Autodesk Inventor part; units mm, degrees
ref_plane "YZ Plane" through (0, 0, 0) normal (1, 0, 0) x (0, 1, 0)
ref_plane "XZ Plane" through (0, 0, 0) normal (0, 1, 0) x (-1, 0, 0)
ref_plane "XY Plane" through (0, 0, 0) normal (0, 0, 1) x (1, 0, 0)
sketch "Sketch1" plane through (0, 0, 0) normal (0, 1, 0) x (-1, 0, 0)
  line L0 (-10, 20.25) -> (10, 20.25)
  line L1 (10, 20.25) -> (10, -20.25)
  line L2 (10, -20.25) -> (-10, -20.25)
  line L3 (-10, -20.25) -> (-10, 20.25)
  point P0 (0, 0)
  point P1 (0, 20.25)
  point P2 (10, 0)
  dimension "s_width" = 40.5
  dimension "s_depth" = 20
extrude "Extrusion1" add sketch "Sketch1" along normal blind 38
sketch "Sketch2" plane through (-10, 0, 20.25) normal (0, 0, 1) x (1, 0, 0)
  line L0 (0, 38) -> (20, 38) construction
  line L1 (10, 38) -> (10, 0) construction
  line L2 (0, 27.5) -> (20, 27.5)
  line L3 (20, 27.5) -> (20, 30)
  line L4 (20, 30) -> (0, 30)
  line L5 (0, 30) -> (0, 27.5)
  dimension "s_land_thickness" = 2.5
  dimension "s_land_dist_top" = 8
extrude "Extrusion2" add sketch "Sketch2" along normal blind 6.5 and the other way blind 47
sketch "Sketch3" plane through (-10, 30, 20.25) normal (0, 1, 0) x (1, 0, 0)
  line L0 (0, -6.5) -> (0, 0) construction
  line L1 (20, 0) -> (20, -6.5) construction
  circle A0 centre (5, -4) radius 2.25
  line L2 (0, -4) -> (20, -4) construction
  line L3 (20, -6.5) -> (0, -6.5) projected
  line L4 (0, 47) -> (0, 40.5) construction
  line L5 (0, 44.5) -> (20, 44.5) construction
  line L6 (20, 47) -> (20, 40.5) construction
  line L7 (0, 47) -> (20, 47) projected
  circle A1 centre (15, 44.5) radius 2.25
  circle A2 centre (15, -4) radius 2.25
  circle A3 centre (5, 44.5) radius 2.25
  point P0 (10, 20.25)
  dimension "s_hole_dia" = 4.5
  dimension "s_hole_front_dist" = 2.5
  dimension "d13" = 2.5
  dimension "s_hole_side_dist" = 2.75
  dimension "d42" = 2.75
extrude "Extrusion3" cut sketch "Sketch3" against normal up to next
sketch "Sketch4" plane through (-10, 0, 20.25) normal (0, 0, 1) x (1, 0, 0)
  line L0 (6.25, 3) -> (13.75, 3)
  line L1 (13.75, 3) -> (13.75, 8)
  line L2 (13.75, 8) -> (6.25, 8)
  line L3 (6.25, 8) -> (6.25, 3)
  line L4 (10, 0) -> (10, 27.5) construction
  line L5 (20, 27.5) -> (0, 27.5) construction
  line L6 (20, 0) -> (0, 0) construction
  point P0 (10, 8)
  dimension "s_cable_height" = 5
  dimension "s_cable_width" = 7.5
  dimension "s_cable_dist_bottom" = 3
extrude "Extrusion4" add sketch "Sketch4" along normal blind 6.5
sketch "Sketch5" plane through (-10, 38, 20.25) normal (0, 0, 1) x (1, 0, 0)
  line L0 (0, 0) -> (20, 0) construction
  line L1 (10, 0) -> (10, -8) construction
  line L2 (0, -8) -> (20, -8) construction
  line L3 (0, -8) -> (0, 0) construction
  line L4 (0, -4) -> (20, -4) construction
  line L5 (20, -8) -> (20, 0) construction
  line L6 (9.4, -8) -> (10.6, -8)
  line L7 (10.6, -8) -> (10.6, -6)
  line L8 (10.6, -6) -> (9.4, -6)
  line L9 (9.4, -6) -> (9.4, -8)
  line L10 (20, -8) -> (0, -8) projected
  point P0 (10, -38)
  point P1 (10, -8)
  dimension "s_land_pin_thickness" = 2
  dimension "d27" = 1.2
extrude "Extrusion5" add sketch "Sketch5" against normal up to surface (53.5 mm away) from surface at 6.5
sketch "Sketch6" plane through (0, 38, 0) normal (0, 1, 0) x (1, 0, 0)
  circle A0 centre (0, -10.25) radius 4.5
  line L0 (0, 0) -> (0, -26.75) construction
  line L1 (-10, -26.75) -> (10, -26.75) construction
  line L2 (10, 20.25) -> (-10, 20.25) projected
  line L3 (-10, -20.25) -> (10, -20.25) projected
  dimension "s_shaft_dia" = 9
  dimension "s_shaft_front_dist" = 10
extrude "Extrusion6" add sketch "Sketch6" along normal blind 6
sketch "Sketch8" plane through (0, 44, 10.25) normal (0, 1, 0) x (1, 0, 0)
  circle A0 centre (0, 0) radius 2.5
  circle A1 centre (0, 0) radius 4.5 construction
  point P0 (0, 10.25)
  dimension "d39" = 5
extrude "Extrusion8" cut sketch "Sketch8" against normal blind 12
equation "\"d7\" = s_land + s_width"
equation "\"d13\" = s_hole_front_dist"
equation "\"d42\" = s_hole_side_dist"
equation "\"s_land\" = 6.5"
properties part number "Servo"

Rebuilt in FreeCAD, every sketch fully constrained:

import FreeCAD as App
import Part
import Sketcher
Q = App.Units.Quantity


def add_polygon(sketch, points):
    """Adds a closed chain of lines whose ends are joined by coincident constraints."""
    first, n = sketch.GeometryCount, len(points)
    for a, b in zip(points, points[1:] + points[:1]):
        sketch.addGeometry(Part.LineSegment(App.Vector(*a, 0), App.Vector(*b, 0)), False)
    for i in range(n):
        sketch.addConstraint(Sketcher.Constraint("Coincident", first + i, 2, first + (i + 1) % n, 1))

doc = App.newDocument("Part")
params = doc.addObject("Spreadsheet::Sheet", "Params")
for row, (alias, value) in enumerate([
    ("sketch1_width", "20 mm"),
    ("sketch1_height", "40.5 mm"),
    ("pad1_length", "38 mm"),
    ("sketch2_height", "2.5 mm"),
    ("sketch2_width", "20 mm"),
    ("pad2_length", "6.5 mm"),
    ("pad2_length2", "47 mm"),
    ("sketch3_diameter", "4.5 mm"),
    ("sketch4_height", "5 mm"),
    ("sketch4_width", "7.5 mm"),
    ("pad3_length", "6.5 mm"),
    ("sketch5_height", "2 mm"),
    ("sketch5_width", "1.2 mm"),
    ("pad4_length", "53.5 mm"),
    ("sketch6_diameter", "9 mm"),
    ("pad5_length", "6 mm"),
    ("sketch7_diameter", "5 mm"),
    ("pocket2_length", "12 mm"),
], start=1):
    params.set(f"A{row}", alias)
    params.set(f"B{row}", "=" + value)
    params.setAlias(f"B{row}", alias)

body = doc.addObject("PartDesign::Body", "Body")

# Sketch on XZ plane
sketch1 = doc.addObject("Sketcher::SketchObject", "Sketch")
body.addObject(sketch1)
sketch1.AttachmentSupport = (doc.XZ_Plane, [""])
sketch1.MapMode = "FlatFace"
add_polygon(sketch1, [(-10, 20.25), (10, 20.25), (10, -20.25), (-10, -20.25)])  # lines 0-3
sketch1.addConstraint([
    Sketcher.Constraint("Horizontal", 0),
    Sketcher.Constraint("Vertical", 1),
    Sketcher.Constraint("Horizontal", 2),
    Sketcher.Constraint("Vertical", 3),
    Sketcher.Constraint("Symmetric", 0, 2, 2, 2, -1, 1),
    Sketcher.Constraint("DistanceX", 0, 1, 0, 2, Q("20 mm")),
    Sketcher.Constraint("DistanceY", 1, 2, 1, 1, Q("40.5 mm")),
])
sketch1.setExpression("Constraints[9]", "Params.sketch1_width")
sketch1.setExpression("Constraints[10]", "Params.sketch1_height")
pad1 = doc.addObject("PartDesign::Pad", "Pad")
body.addObject(pad1)
pad1.Profile = sketch1
pad1.setExpression("Length", "Params.pad1_length")
pad1.Reversed = True

# Sketch on XY plane
sketch2 = doc.addObject("Sketcher::SketchObject", "Sketch001")
body.addObject(sketch2)
sketch2.AttachmentSupport = (doc.XY_Plane, [""])
sketch2.MapMode = "FlatFace"
sketch2.AttachmentOffset = App.Placement(App.Vector(0, 0, 20.25), App.Rotation())
add_polygon(sketch2, [(-10, 30), (-10, 27.5), (10, 27.5), (10, 30)])  # lines 0-3
sketch2.addConstraint([
    Sketcher.Constraint("Vertical", 0),
    Sketcher.Constraint("Horizontal", 1),
    Sketcher.Constraint("Vertical", 2),
    Sketcher.Constraint("Horizontal", 3),
    Sketcher.Constraint("DistanceY", 0, 2, 0, 1, Q("2.5 mm")),
    Sketcher.Constraint("DistanceX", 1, 1, 1, 2, Q("20 mm")),
    Sketcher.Constraint("DistanceX", 0, 2, -1, 1, Q("10 mm")),
    Sketcher.Constraint("DistanceY", -1, 1, 2, 2, Q("30 mm")),
])
sketch2.setExpression("Constraints[8]", "Params.sketch2_height")
sketch2.setExpression("Constraints[9]", "Params.sketch2_width")
pad2 = doc.addObject("PartDesign::Pad", "Pad001")
body.addObject(pad2)
pad2.Profile = sketch2
pad2.Type = "TwoLengths"
pad2.setExpression("Length", "Params.pad2_length")
pad2.setExpression("Length2", "Params.pad2_length2")

# Sketch on XZ plane
sketch3 = doc.addObject("Sketcher::SketchObject", "Sketch002")
body.addObject(sketch3)
sketch3.AttachmentSupport = (doc.XZ_Plane, [""])
sketch3.MapMode = "FlatFace"
sketch3.AttachmentOffset = App.Placement(App.Vector(0, 0, -30), App.Rotation())
sketch3.addGeometry([
    Part.Circle(App.Vector(-5, 24.25, 0), App.Vector(0, 0, 1), 2.25),
    Part.Circle(App.Vector(5, -24.25, 0), App.Vector(0, 0, 1), 2.25),
    Part.Circle(App.Vector(5, 24.25, 0), App.Vector(0, 0, 1), 2.25),
    Part.Circle(App.Vector(-5, -24.25, 0), App.Vector(0, 0, 1), 2.25),
], False)
sketch3.addConstraint([
    Sketcher.Constraint("Equal", 0, 1),
    Sketcher.Constraint("Equal", 1, 2),
    Sketcher.Constraint("Equal", 2, 3),
    Sketcher.Constraint("Symmetric", 0, 3, 1, 3, -1, 1),
    Sketcher.Constraint("Symmetric", 2, 3, 3, 3, -1, 1),
    Sketcher.Constraint("Symmetric", 0, 3, 2, 3, -2),
    Sketcher.Constraint("Diameter", 0, Q("4.5 mm")),
    Sketcher.Constraint("DistanceX", 0, 3, -1, 1, Q("5 mm")),
    Sketcher.Constraint("DistanceY", 1, 3, 0, 3, Q("48.5 mm")),
])
sketch3.setExpression("Constraints[6]", "Params.sketch3_diameter")
pocket1 = doc.addObject("PartDesign::Pocket", "Pocket")
body.addObject(pocket1)
pocket1.Profile = sketch3
pocket1.Type = "UpToFirst"
pocket1.Reversed = True

# Sketch on XY plane
sketch4 = doc.addObject("Sketcher::SketchObject", "Sketch003")
body.addObject(sketch4)
sketch4.AttachmentSupport = (doc.XY_Plane, [""])
sketch4.MapMode = "FlatFace"
sketch4.AttachmentOffset = App.Placement(App.Vector(0, 0, 20.25), App.Rotation())
add_polygon(sketch4, [(-3.75, 8), (-3.75, 3), (3.75, 3), (3.75, 8)])  # lines 0-3
sketch4.addConstraint([
    Sketcher.Constraint("Vertical", 0),
    Sketcher.Constraint("Horizontal", 1),
    Sketcher.Constraint("Vertical", 2),
    Sketcher.Constraint("Horizontal", 3),
    Sketcher.Constraint("DistanceY", 0, 2, 0, 1, Q("5 mm")),
    Sketcher.Constraint("DistanceX", 1, 1, 1, 2, Q("7.5 mm")),
    Sketcher.Constraint("DistanceY", -1, 1, 0, 2, Q("3 mm")),
    Sketcher.Constraint("DistanceX", 0, 2, -1, 1, Q("3.75 mm")),
])
sketch4.setExpression("Constraints[8]", "Params.sketch4_height")
sketch4.setExpression("Constraints[9]", "Params.sketch4_width")
pad3 = doc.addObject("PartDesign::Pad", "Pad002")
body.addObject(pad3)
pad3.Profile = sketch4
pad3.setExpression("Length", "Params.pad3_length")

# Sketch on XY plane
sketch5 = doc.addObject("Sketcher::SketchObject", "Sketch004")
body.addObject(sketch5)
sketch5.AttachmentSupport = (doc.XY_Plane, [""])
sketch5.MapMode = "FlatFace"
sketch5.AttachmentOffset = App.Placement(App.Vector(0, 0, 26.75), App.Rotation())
add_polygon(sketch5, [(-0.6, 32), (-0.6, 30), (0.6, 30), (0.6, 32)])  # lines 0-3
sketch5.addConstraint([
    Sketcher.Constraint("Vertical", 0),
    Sketcher.Constraint("Horizontal", 1),
    Sketcher.Constraint("Vertical", 2),
    Sketcher.Constraint("Horizontal", 3),
    Sketcher.Constraint("DistanceY", 0, 2, 0, 1, Q("2 mm")),
    Sketcher.Constraint("DistanceX", 1, 1, 1, 2, Q("1.2 mm")),
    Sketcher.Constraint("DistanceY", -1, 1, 0, 2, Q("30 mm")),
    Sketcher.Constraint("DistanceX", 0, 2, -1, 1, Q("0.6 mm")),
])
sketch5.setExpression("Constraints[8]", "Params.sketch5_height")
sketch5.setExpression("Constraints[9]", "Params.sketch5_width")
pad4 = doc.addObject("PartDesign::Pad", "Pad003")
body.addObject(pad4)
pad4.Profile = sketch5
pad4.setExpression("Length", "Params.pad4_length")
pad4.Reversed = True

# Sketch on XZ plane
sketch6 = doc.addObject("Sketcher::SketchObject", "Sketch005")
body.addObject(sketch6)
sketch6.AttachmentSupport = (doc.XZ_Plane, [""])
sketch6.MapMode = "FlatFace"
sketch6.AttachmentOffset = App.Placement(App.Vector(0, 0, -38), App.Rotation())
sketch6.addGeometry(Part.Circle(App.Vector(0, 10.25, 0), App.Vector(0, 0, 1), 4.5), False)
sketch6.addConstraint([
    Sketcher.Constraint("PointOnObject", 0, 3, -2),
    Sketcher.Constraint("Diameter", 0, Q("9 mm")),
    Sketcher.Constraint("DistanceY", -1, 1, 0, 3, Q("10.25 mm")),
])
sketch6.setExpression("Constraints[1]", "Params.sketch6_diameter")
pad5 = doc.addObject("PartDesign::Pad", "Pad004")
body.addObject(pad5)
pad5.Profile = sketch6
pad5.setExpression("Length", "Params.pad5_length")
pad5.Reversed = True

# Sketch on XZ plane
sketch7 = doc.addObject("Sketcher::SketchObject", "Sketch006")
body.addObject(sketch7)
sketch7.AttachmentSupport = (doc.XZ_Plane, [""])
sketch7.MapMode = "FlatFace"
sketch7.AttachmentOffset = App.Placement(App.Vector(0, 0, -44), App.Rotation())
sketch7.addGeometry(Part.Circle(App.Vector(0, 10.25, 0), App.Vector(0, 0, 1), 2.5), False)
sketch7.addConstraint([
    Sketcher.Constraint("PointOnObject", 0, 3, -2),
    Sketcher.Constraint("Diameter", 0, Q("5 mm")),
    Sketcher.Constraint("DistanceY", -1, 1, 0, 3, Q("10.25 mm")),
])
sketch7.setExpression("Constraints[1]", "Params.sketch7_diameter")
pocket2 = doc.addObject("PartDesign::Pocket", "Pocket001")
body.addObject(pocket2)
pocket2.Profile = sketch7
pocket2.setExpression("Length", "Params.pocket2_length")
pocket2.Reversed = True

doc.recompute()
